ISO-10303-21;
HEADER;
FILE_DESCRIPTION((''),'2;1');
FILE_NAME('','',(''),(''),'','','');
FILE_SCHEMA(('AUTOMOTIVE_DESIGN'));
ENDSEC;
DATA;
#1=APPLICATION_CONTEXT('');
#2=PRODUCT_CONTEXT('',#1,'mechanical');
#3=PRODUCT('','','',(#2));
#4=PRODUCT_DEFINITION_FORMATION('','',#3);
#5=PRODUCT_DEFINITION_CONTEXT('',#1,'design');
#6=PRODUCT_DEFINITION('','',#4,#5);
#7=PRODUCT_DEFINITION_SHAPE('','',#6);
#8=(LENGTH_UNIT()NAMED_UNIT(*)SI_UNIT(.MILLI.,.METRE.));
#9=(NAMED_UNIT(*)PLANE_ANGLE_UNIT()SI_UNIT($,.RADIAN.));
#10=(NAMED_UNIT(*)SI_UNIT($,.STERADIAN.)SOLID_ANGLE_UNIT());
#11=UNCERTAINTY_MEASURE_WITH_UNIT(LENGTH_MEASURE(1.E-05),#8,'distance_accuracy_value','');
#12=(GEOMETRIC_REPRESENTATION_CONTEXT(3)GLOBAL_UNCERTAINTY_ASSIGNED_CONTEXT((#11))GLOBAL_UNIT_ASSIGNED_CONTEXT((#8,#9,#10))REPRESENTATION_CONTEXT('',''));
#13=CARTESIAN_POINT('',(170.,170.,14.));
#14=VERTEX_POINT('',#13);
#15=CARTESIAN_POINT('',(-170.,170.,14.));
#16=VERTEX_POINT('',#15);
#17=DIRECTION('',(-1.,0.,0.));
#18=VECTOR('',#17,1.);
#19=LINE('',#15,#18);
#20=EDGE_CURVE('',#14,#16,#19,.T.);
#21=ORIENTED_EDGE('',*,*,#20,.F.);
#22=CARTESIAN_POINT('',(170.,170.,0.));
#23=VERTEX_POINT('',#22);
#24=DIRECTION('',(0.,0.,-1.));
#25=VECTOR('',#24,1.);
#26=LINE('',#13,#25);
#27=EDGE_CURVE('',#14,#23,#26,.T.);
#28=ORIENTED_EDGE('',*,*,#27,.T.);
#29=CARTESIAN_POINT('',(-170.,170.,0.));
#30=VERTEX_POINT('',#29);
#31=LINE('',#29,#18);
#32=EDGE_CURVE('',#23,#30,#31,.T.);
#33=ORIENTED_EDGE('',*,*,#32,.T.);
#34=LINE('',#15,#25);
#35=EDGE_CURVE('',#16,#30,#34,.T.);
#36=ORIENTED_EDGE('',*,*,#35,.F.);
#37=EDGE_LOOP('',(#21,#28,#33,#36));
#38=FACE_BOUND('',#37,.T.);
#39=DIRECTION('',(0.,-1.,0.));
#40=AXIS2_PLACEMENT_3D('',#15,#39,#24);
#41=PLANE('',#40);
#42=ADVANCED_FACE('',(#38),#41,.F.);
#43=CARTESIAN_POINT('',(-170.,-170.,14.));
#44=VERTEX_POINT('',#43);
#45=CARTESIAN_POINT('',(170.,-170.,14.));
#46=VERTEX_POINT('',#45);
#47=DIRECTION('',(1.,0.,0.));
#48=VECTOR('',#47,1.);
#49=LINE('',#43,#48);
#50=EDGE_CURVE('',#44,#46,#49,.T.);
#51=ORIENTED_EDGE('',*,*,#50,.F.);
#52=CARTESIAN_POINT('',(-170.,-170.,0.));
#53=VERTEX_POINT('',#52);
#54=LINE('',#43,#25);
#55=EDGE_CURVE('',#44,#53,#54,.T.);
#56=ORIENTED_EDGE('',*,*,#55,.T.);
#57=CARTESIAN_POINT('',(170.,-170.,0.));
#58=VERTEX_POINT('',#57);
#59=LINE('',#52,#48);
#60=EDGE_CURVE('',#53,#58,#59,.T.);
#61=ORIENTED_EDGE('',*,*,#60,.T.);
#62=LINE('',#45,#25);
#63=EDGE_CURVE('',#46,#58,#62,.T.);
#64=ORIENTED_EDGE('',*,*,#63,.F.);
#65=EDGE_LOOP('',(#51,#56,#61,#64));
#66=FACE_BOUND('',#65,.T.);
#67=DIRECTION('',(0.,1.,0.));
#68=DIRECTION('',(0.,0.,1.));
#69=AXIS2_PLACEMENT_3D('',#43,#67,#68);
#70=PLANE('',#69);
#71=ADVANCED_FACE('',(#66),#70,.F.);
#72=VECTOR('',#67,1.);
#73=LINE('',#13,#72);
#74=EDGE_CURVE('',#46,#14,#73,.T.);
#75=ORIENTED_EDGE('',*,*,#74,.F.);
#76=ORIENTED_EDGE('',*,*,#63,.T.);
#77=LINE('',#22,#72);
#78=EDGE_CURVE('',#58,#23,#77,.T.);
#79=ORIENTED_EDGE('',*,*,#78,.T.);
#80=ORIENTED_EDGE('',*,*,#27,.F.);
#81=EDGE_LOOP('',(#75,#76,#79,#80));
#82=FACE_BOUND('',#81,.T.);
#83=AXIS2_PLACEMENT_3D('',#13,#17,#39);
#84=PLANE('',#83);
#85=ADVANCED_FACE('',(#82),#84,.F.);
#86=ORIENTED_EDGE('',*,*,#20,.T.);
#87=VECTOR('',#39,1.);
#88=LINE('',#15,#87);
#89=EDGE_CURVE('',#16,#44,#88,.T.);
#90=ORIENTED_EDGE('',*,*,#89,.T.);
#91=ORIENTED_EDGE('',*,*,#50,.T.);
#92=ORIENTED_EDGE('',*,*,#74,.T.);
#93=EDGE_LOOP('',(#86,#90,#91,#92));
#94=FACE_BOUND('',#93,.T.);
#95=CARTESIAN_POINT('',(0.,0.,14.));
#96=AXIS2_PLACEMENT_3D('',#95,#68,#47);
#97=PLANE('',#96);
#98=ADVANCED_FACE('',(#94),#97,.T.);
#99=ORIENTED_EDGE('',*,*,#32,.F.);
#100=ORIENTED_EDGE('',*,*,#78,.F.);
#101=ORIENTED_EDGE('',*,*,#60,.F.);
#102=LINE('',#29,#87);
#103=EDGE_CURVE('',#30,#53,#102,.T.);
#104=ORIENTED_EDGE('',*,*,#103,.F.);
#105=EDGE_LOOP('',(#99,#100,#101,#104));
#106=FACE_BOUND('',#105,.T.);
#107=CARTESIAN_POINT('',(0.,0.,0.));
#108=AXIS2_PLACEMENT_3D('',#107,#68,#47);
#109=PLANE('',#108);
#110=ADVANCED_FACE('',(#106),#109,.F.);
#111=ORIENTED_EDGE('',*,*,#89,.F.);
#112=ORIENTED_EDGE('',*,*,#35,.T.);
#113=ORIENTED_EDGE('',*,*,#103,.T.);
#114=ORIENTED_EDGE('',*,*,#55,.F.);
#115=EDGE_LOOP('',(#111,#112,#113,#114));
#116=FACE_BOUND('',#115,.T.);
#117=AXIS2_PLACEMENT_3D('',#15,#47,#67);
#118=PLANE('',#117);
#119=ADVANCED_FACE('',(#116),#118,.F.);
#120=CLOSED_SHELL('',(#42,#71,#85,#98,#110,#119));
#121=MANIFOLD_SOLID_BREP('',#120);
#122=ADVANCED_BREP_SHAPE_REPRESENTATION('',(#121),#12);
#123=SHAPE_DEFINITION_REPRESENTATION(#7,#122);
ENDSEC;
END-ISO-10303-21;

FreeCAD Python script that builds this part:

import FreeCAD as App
import Part
import Sketcher
from FreeCAD import Vector
Q = App.Units.Quantity

doc = App.newDocument("Part")
params = doc.addObject("Spreadsheet::Sheet", "Params")
for row, (alias, value) in enumerate([
    ("sketch1_width", "340 mm"),
    ("pad1_length", "14 mm"),
], start=1):
    params.set(f"A{row}", alias)
    params.set(f"B{row}", "=" + value)
    params.setAlias(f"B{row}", alias)

body = doc.addObject("PartDesign::Body", "Body")

sketch1 = doc.addObject("Sketcher::SketchObject", "Sketch")
body.addObject(sketch1)
sketch1.AttachmentSupport = (doc.XY_Plane, [""])
sketch1.MapMode = "FlatFace"
sketch1.addGeometry(Part.LineSegment(Vector(-170, 170, 0), Vector(-170, -170, 0)), False)
sketch1.addGeometry(Part.LineSegment(Vector(-170, -170, 0), Vector(170, -170, 0)), False)
sketch1.addGeometry(Part.LineSegment(Vector(170, -170, 0), Vector(170, 170, 0)), False)
sketch1.addGeometry(Part.LineSegment(Vector(170, 170, 0), Vector(-170, 170, 0)), False)
sketch1.addConstraint(Sketcher.Constraint("Coincident", 0, 2, 1, 1))
sketch1.addConstraint(Sketcher.Constraint("Coincident", 1, 2, 2, 1))
sketch1.addConstraint(Sketcher.Constraint("Coincident", 2, 2, 3, 1))
sketch1.addConstraint(Sketcher.Constraint("Coincident", 3, 2, 0, 1))
sketch1.addConstraint(Sketcher.Constraint("Vertical", 0))
sketch1.addConstraint(Sketcher.Constraint("Horizontal", 1))
sketch1.addConstraint(Sketcher.Constraint("Vertical", 2))
sketch1.addConstraint(Sketcher.Constraint("Horizontal", 3))
sketch1.addConstraint(Sketcher.Constraint("Symmetric", 0, 2, 2, 2, -1, 1))
sketch1.addConstraint(Sketcher.Constraint("Equal", 3, 0))
sketch1.addConstraint(Sketcher.Constraint("DistanceX", 1, 1, 1, 2, Q("340 mm")))
sketch1.setExpression("Constraints[10]", "Params.sketch1_width")
pad1 = doc.addObject("PartDesign::Pad", "Pad")
body.addObject(pad1)
pad1.Profile = sketch1
pad1.setExpression("Length", "Params.pad1_length")

doc.recompute()
